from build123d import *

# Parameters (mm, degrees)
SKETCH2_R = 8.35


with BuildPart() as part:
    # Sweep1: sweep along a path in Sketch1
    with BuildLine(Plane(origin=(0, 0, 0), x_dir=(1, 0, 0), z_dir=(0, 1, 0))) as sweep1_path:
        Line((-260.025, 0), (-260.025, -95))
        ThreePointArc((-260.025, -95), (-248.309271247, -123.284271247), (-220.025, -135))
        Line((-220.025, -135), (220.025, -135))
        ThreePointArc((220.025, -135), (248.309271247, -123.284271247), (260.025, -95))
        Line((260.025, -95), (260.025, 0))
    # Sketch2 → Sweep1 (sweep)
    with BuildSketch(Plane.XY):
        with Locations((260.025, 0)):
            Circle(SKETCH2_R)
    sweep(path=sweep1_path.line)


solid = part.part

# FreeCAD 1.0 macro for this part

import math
import FreeCAD as App
import Part
import Sketcher

V = App.Vector

doc = App.newDocument("Part")
body = doc.addObject("PartDesign::Body", "Body")

# Sketch on XY plane
sketch1 = body.newObject("Sketcher::SketchObject", "Sketch")
sketch1.AttachmentSupport = (doc.getObject("XY_Plane"), [""])
sketch1.MapMode = "FlatFace"
sketch1.addGeometry(Part.Circle(V(260.025, 0, 0), V(0, 0, 1), 8.35), False)
sketch1.addConstraint([
    Sketcher.Constraint("PointOnObject", 0, 3, -1),
    Sketcher.Constraint("Diameter", 0, 16.7),
    Sketcher.Constraint("DistanceX", -1, 1, 0, 3, 260.025),
])

# Sketch on XZ plane
sketch2 = body.newObject("Sketcher::SketchObject", "Sketch001")
sketch2.AttachmentSupport = (doc.getObject("XZ_Plane"), [""])
sketch2.MapMode = "FlatFace"
sketch2.addGeometry([
    Part.LineSegment(V(-260.025, 0, 0), V(-260.025, 95, 0)),  # 0
    Part.ArcOfCircle(Part.Circle(V(-220.025, 95, 0), V(0, 0, 1), 40), math.radians(90), math.radians(180)),  # 1
    Part.LineSegment(V(-220.025, 135, 0), V(220.025, 135, 0)),  # 2
    Part.ArcOfCircle(Part.Circle(V(220.025, 95, 0), V(0, 0, 1), 40), math.radians(0), math.radians(90)),  # 3
    Part.LineSegment(V(260.025, 95, 0), V(260.025, 0, 0)),  # 4
], False)
sketch2.addConstraint([
    Sketcher.Constraint("Tangent", 0, 2, 1, 2),
    Sketcher.Constraint("Tangent", 1, 1, 2, 1),
    Sketcher.Constraint("Tangent", 2, 2, 3, 2),
    Sketcher.Constraint("Tangent", 3, 1, 4, 1),
    Sketcher.Constraint("Vertical", 0),
    Sketcher.Constraint("Horizontal", 2),
    Sketcher.Constraint("Vertical", 4),
    Sketcher.Constraint("Equal", 1, 3),
    Sketcher.Constraint("Symmetric", 0, 1, 4, 2, -1, 1),
    Sketcher.Constraint("PointOnObject", 0, 1, -1),
    Sketcher.Constraint("Radius", 1, 40.0),
    Sketcher.Constraint("DistanceY", 0, 1, 0, 2, 95.0),
    Sketcher.Constraint("DistanceX", 2, 1, 2, 2, 440.05),
])
doc.recompute()

additivepipe = body.newObject("PartDesign::AdditivePipe", "AdditivePipe")
additivepipe.Profile = sketch1
additivepipe.Spine = (sketch2, ["Edge1", "Edge2", "Edge3", "Edge4", "Edge5"])

doc.recompute()
